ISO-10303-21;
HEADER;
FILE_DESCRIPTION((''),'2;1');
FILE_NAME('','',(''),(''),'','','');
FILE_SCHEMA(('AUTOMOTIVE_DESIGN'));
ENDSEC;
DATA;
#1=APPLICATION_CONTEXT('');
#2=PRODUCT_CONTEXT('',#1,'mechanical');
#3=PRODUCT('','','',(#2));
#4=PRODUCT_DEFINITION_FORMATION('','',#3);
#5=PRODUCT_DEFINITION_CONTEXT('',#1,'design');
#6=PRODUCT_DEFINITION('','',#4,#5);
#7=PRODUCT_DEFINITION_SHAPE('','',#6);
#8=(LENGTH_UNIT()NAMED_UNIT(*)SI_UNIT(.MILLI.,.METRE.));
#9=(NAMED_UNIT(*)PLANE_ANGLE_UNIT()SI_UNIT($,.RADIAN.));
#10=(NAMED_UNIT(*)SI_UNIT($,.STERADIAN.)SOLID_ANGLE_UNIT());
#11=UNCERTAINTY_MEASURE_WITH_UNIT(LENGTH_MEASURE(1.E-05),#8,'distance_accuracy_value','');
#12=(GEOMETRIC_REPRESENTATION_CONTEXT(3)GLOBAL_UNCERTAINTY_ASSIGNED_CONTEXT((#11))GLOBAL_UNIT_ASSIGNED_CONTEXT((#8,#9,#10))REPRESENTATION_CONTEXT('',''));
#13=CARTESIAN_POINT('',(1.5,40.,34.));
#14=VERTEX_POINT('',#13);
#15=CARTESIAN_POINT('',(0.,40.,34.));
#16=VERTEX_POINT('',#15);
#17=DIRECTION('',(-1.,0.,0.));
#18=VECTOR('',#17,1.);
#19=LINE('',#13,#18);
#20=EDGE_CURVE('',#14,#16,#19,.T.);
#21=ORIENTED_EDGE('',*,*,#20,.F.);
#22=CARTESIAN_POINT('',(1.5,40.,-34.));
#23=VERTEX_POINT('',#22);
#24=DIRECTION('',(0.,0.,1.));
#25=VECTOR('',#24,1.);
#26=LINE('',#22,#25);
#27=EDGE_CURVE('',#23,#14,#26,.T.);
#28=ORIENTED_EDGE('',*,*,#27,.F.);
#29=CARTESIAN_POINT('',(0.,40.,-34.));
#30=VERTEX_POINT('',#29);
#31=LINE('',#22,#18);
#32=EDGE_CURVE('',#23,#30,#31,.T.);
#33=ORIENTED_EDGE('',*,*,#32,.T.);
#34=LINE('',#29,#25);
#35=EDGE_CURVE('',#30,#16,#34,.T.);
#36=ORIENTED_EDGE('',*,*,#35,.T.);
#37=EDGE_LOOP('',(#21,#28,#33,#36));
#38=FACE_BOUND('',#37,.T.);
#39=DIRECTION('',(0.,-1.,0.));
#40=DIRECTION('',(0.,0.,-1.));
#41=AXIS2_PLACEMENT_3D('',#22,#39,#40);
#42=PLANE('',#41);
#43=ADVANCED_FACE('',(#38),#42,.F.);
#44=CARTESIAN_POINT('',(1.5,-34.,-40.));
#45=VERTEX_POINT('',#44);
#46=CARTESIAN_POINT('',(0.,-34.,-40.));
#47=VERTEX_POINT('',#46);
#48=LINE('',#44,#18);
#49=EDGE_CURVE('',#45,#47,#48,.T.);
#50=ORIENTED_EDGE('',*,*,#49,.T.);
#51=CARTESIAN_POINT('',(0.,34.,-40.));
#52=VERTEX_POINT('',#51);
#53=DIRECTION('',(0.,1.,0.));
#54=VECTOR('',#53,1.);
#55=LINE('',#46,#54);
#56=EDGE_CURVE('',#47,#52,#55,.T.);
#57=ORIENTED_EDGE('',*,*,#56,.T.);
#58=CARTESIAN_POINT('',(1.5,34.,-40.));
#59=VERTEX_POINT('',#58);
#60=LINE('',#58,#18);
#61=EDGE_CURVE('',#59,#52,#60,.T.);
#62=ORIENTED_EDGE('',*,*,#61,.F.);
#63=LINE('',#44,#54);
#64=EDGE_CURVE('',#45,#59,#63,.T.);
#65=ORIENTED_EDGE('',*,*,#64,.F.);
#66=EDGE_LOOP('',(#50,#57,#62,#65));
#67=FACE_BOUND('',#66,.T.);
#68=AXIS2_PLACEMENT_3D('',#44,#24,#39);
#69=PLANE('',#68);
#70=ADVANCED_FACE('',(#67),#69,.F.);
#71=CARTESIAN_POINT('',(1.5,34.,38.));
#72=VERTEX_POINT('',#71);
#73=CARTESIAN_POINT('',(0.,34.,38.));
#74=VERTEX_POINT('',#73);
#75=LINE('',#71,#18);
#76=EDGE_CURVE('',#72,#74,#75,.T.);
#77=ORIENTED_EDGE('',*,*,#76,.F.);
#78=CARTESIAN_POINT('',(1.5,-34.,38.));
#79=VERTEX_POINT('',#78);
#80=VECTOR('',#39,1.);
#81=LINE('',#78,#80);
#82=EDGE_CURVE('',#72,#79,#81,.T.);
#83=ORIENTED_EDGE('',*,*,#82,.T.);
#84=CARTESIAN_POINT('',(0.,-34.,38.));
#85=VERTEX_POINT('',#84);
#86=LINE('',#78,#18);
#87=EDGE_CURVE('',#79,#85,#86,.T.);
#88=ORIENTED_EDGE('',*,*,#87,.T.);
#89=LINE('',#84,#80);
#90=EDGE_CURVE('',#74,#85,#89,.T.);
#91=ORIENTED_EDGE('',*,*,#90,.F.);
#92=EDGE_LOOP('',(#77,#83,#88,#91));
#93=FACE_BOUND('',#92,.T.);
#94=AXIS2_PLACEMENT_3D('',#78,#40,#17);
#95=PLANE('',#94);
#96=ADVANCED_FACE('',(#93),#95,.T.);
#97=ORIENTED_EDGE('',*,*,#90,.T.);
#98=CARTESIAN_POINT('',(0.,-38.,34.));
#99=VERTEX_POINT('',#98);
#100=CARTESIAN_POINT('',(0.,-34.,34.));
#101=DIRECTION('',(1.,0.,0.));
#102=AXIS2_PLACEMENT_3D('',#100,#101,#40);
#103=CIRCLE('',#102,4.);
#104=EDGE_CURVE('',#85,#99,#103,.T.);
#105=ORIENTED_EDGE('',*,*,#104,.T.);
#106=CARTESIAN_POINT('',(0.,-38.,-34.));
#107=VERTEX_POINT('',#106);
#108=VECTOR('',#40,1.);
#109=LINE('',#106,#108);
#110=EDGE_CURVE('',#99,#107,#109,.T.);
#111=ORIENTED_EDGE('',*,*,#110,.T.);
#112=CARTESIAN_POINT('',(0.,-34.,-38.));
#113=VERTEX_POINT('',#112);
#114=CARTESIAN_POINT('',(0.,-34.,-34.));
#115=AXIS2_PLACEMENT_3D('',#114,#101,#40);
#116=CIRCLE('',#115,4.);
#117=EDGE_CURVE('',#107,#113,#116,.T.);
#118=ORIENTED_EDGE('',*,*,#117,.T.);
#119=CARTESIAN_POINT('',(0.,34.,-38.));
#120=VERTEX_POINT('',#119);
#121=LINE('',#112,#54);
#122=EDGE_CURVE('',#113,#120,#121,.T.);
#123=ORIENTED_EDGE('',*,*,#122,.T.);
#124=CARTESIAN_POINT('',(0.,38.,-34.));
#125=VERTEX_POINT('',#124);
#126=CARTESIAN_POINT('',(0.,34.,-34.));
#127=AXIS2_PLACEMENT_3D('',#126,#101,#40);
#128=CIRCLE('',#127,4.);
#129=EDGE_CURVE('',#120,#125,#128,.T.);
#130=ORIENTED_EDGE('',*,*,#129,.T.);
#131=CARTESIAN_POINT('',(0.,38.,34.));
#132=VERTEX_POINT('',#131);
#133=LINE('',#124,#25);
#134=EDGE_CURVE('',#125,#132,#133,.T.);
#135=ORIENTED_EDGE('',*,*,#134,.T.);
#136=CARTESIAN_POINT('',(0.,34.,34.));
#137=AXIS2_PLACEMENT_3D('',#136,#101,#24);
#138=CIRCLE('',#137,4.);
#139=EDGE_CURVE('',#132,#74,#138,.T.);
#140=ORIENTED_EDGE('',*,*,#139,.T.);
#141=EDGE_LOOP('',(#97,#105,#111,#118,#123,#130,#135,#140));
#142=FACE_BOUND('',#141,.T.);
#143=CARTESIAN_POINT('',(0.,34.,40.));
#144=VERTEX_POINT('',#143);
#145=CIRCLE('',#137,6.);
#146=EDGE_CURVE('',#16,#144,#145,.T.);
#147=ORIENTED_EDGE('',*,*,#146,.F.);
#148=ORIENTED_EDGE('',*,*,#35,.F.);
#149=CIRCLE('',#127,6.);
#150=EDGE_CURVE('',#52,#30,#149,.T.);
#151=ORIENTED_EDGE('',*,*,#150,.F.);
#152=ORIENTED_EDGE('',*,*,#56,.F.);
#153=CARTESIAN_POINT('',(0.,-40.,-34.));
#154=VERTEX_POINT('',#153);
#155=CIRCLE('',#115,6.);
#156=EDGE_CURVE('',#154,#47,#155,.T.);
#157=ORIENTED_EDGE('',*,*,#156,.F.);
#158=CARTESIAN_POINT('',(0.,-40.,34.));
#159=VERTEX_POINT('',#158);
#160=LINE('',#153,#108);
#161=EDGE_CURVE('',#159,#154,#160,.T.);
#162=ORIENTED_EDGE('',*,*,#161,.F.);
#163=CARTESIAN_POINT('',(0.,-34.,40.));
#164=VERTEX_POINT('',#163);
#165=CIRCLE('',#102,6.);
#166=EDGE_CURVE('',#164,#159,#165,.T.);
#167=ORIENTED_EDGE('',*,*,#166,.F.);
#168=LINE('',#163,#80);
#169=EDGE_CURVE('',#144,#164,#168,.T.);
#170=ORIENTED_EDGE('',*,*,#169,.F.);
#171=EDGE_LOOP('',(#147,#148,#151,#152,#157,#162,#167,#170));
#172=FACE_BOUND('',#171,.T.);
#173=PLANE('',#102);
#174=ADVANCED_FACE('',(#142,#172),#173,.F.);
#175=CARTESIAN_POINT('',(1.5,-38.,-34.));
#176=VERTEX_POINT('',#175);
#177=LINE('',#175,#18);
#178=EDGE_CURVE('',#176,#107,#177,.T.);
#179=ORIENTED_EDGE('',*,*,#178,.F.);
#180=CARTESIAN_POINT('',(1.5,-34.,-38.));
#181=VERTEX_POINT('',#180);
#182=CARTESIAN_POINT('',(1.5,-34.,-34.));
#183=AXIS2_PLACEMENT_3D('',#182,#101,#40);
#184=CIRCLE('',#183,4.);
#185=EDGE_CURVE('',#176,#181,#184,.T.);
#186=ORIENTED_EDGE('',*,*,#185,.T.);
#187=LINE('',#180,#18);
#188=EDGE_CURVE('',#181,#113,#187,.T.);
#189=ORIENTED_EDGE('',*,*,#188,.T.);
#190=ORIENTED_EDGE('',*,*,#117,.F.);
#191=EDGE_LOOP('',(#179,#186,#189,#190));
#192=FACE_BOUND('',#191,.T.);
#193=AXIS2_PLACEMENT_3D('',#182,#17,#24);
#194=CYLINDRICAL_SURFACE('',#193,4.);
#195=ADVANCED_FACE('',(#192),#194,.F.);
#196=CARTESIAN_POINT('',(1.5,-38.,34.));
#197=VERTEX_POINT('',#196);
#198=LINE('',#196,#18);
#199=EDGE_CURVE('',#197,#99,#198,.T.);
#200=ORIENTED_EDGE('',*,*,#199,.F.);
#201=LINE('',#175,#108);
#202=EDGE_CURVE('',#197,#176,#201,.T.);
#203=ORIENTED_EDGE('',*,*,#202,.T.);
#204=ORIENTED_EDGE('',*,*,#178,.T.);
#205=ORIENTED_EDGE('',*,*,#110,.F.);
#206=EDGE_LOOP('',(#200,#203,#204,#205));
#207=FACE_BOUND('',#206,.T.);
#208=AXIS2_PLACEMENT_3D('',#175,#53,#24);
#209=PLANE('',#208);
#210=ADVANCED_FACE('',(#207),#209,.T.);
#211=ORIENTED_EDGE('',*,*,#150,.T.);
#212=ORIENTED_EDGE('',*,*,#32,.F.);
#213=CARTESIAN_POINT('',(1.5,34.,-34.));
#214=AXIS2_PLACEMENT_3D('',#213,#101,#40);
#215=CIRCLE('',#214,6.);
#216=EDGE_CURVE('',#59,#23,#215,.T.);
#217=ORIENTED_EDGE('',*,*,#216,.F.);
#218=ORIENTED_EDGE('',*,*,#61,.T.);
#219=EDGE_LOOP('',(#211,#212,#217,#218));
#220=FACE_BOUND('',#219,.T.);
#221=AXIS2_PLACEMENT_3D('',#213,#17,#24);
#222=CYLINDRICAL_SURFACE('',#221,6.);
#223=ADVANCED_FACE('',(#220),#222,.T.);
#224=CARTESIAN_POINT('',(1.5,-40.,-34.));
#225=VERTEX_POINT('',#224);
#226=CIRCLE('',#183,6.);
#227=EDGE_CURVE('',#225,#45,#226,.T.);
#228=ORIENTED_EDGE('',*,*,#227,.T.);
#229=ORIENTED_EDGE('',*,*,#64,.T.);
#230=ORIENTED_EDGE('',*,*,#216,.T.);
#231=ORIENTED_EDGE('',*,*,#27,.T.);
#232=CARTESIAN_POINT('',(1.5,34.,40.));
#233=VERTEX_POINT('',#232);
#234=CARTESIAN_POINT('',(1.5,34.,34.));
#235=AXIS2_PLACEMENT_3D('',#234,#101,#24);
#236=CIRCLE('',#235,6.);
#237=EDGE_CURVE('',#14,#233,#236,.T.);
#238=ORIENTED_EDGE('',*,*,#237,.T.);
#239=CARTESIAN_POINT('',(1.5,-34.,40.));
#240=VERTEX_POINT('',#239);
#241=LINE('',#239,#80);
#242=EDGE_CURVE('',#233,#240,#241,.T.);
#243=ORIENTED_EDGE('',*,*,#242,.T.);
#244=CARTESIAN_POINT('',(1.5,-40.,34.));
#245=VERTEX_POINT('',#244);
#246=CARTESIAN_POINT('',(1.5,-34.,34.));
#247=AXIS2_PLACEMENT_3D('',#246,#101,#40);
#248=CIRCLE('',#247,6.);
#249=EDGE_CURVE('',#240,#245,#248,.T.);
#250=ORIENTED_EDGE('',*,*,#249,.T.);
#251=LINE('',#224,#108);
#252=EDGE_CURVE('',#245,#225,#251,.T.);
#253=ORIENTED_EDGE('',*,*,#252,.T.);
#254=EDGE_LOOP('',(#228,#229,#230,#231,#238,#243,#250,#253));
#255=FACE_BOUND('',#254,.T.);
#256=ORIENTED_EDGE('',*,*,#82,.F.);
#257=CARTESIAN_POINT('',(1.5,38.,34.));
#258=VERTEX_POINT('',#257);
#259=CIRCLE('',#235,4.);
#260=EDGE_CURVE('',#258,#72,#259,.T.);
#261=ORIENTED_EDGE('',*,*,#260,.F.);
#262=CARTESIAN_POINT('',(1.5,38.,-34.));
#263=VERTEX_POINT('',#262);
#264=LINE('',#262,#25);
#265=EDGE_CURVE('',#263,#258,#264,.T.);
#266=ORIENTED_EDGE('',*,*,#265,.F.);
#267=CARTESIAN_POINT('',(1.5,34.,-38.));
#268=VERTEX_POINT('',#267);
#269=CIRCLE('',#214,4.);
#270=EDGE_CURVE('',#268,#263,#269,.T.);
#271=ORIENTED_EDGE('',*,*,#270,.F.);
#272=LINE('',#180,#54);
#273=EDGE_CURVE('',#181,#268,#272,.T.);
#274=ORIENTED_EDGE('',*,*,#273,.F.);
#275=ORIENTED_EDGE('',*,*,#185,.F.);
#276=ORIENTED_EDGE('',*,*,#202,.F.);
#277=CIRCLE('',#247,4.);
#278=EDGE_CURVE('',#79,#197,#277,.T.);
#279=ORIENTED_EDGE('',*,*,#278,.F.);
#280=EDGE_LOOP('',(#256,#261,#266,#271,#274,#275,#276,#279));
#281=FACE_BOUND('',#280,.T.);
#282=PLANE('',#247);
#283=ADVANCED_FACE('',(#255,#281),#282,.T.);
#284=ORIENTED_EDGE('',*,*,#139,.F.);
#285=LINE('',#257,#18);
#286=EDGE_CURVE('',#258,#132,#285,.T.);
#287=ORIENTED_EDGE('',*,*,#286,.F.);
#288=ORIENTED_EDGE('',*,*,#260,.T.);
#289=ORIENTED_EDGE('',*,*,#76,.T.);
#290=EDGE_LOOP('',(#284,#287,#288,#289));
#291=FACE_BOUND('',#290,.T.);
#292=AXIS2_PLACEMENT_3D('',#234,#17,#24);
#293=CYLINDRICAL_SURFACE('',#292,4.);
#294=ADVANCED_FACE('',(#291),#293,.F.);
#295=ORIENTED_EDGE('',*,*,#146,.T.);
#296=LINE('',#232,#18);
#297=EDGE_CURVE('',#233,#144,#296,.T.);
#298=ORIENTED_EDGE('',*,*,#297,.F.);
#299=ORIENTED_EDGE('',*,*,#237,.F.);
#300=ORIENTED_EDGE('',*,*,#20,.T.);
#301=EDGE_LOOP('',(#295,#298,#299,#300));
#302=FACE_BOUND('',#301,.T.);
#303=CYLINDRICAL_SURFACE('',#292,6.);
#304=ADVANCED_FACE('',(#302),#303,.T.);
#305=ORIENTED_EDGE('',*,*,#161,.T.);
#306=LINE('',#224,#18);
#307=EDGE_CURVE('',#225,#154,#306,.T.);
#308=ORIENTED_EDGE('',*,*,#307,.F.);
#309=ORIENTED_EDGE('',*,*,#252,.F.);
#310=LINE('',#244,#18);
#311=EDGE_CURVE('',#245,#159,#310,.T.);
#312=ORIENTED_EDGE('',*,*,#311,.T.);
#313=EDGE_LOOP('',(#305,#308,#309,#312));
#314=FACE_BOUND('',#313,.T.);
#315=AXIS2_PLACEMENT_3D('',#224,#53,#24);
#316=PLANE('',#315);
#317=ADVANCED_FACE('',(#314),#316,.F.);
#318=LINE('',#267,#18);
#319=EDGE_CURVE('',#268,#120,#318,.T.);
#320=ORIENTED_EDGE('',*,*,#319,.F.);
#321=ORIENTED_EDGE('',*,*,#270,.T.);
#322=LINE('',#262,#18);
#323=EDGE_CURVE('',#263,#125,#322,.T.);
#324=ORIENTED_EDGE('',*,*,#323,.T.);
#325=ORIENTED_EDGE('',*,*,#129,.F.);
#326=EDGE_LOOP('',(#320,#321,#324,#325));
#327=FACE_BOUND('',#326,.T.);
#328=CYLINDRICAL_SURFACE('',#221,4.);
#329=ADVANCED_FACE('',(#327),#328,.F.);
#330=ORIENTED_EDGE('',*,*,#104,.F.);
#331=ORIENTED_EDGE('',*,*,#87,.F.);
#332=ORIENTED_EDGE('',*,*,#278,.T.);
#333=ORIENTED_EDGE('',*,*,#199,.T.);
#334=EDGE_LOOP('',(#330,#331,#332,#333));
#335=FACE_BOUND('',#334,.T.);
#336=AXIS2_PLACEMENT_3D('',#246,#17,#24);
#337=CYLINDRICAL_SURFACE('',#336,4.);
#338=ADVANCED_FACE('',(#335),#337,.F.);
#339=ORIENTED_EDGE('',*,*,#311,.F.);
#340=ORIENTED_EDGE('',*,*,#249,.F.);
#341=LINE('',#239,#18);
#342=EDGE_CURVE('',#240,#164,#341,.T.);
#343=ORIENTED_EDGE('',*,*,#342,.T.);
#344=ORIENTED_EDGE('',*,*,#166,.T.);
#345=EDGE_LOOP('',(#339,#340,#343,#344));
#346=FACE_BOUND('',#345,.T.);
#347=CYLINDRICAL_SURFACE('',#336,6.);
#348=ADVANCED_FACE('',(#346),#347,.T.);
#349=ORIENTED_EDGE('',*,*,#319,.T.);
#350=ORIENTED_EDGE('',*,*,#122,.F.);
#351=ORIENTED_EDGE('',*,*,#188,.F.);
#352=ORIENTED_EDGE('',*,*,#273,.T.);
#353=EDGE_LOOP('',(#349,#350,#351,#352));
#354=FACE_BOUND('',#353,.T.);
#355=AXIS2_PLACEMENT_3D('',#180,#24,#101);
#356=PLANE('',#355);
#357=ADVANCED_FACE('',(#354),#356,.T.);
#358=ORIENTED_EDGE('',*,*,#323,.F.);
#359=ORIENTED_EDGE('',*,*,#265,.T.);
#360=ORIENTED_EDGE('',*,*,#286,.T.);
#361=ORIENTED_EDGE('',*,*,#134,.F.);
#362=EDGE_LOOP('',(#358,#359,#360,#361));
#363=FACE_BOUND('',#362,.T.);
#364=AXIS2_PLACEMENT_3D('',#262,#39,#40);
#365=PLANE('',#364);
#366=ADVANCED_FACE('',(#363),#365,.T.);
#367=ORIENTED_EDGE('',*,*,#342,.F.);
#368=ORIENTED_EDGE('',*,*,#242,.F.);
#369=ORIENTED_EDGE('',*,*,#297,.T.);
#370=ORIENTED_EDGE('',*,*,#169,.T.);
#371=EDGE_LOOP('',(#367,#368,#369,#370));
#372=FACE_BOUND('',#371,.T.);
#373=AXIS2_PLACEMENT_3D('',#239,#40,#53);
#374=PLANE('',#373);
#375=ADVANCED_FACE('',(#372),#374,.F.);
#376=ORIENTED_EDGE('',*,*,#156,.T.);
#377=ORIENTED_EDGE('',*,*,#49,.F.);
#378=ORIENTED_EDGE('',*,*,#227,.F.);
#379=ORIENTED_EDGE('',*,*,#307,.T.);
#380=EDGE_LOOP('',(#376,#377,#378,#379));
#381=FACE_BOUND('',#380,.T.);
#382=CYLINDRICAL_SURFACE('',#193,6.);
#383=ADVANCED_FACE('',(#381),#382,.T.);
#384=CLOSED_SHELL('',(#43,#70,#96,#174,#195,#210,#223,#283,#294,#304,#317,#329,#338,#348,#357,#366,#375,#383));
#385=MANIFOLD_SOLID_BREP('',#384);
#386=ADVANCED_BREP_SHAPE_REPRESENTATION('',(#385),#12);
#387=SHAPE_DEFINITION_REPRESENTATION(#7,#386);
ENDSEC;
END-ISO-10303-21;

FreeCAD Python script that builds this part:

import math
import FreeCAD as App
import Part
import Sketcher

doc = App.newDocument("Part")
params = doc.addObject("Spreadsheet::Sheet", "Params")
for row, (alias, value) in enumerate([
    ("sketch1_radius", "6 mm"),
    ("sketch1_radius2", "4 mm"),
    ("sketch1_width", "68 mm"),
    ("pad1_length", "1.5 mm"),
], start=1):
    params.set(f"A{row}", alias)
    params.set(f"B{row}", "=" + value)
    params.setAlias(f"B{row}", alias)

body = doc.addObject("PartDesign::Body", "Body")

sketch1 = body.newObject("Sketcher::SketchObject", "Sketch")
sketch1.AttachmentSupport = (doc.getObject("YZ_Plane"), [""])
sketch1.MapMode = "FlatFace"
sketch1.addGeometry([
    Part.LineSegment(App.Vector(-40, 34, 0), App.Vector(-40, -34, 0)),
    Part.ArcOfCircle(Part.Circle(App.Vector(-34, -34, 0), App.Vector(0, 0, 1), 6), math.radians(180), math.radians(270)),
    Part.LineSegment(App.Vector(-34, -40, 0), App.Vector(34, -40, 0)),
    Part.ArcOfCircle(Part.Circle(App.Vector(34, -34, 0), App.Vector(0, 0, 1), 6), math.radians(-90), math.radians(0)),
    Part.LineSegment(App.Vector(40, -34, 0), App.Vector(40, 34, 0)),
    Part.ArcOfCircle(Part.Circle(App.Vector(34, 34, 0), App.Vector(0, 0, 1), 6), math.radians(0), math.radians(90)),
    Part.LineSegment(App.Vector(34, 40, 0), App.Vector(-34, 40, 0)),
    Part.ArcOfCircle(Part.Circle(App.Vector(-34, 34, 0), App.Vector(0, 0, 1), 6), math.radians(90), math.radians(180)),
    Part.ArcOfCircle(Part.Circle(App.Vector(34, -34, 0), App.Vector(0, 0, 1), 4), math.radians(-90), math.radians(0)),
    Part.LineSegment(App.Vector(34, -38, 0), App.Vector(-34, -38, 0)),
    Part.ArcOfCircle(Part.Circle(App.Vector(-34, -34, 0), App.Vector(0, 0, 1), 4), math.radians(180), math.radians(270)),
    Part.LineSegment(App.Vector(-38, -34, 0), App.Vector(-38, 34, 0)),
    Part.ArcOfCircle(Part.Circle(App.Vector(-34, 34, 0), App.Vector(0, 0, 1), 4), math.radians(90), math.radians(180)),
    Part.LineSegment(App.Vector(-34, 38, 0), App.Vector(34, 38, 0)),
    Part.ArcOfCircle(Part.Circle(App.Vector(34, 34, 0), App.Vector(0, 0, 1), 4), math.radians(0), math.radians(90)),
    Part.LineSegment(App.Vector(38, 34, 0), App.Vector(38, -34, 0)),
], False)
sketch1.addConstraint([
    Sketcher.Constraint("Tangent", 0, 2, 1, 1),
    Sketcher.Constraint("Tangent", 1, 2, 2, 1),
    Sketcher.Constraint("Tangent", 2, 2, 3, 1),
    Sketcher.Constraint("Tangent", 3, 2, 4, 1),
    Sketcher.Constraint("Tangent", 4, 2, 5, 1),
    Sketcher.Constraint("Tangent", 5, 2, 6, 1),
    Sketcher.Constraint("Tangent", 6, 2, 7, 1),
    Sketcher.Constraint("Tangent", 7, 2, 0, 1),
    Sketcher.Constraint("Tangent", 8, 1, 9, 1),
    Sketcher.Constraint("Tangent", 9, 2, 10, 2),
    Sketcher.Constraint("Tangent", 10, 1, 11, 1),
    Sketcher.Constraint("Tangent", 11, 2, 12, 2),
    Sketcher.Constraint("Tangent", 12, 1, 13, 1),
    Sketcher.Constraint("Tangent", 13, 2, 14, 2),
    Sketcher.Constraint("Tangent", 14, 1, 15, 1),
    Sketcher.Constraint("Tangent", 15, 2, 8, 2),
    Sketcher.Constraint("Vertical", 0),
    Sketcher.Constraint("Horizontal", 2),
    Sketcher.Constraint("Vertical", 4),
    Sketcher.Constraint("Horizontal", 6),
    Sketcher.Constraint("Horizontal", 9),
    Sketcher.Constraint("Vertical", 11),
    Sketcher.Constraint("Horizontal", 13),
    Sketcher.Constraint("Vertical", 15),
    Sketcher.Constraint("Coincident", 8, 3, 3, 3),
    Sketcher.Constraint("Coincident", 10, 3, 1, 3),
    Sketcher.Constraint("Coincident", 12, 3, 7, 3),
    Sketcher.Constraint("Equal", 1, 3),
    Sketcher.Constraint("Equal", 3, 5),
    Sketcher.Constraint("Equal", 5, 7),
    Sketcher.Constraint("Equal", 12, 14),
    Sketcher.Constraint("Symmetric", 1, 3, 5, 3, -1, 1),
    Sketcher.Constraint("Equal", 13, 0),
    Sketcher.Constraint("Radius", 1, 6.0),
    Sketcher.Constraint("Radius", 8, 4.0),
    Sketcher.Constraint("DistanceX", 2, 1, 2, 2, 68.0),
])
sketch1.setExpression("Constraints[33]", "Params.sketch1_radius")
sketch1.setExpression("Constraints[34]", "Params.sketch1_radius2")
sketch1.setExpression("Constraints[35]", "Params.sketch1_width")
pad1 = body.newObject("PartDesign::Pad", "Pad")
pad1.Profile = sketch1
pad1.setExpression("Length", "Params.pad1_length")

doc.recompute()
